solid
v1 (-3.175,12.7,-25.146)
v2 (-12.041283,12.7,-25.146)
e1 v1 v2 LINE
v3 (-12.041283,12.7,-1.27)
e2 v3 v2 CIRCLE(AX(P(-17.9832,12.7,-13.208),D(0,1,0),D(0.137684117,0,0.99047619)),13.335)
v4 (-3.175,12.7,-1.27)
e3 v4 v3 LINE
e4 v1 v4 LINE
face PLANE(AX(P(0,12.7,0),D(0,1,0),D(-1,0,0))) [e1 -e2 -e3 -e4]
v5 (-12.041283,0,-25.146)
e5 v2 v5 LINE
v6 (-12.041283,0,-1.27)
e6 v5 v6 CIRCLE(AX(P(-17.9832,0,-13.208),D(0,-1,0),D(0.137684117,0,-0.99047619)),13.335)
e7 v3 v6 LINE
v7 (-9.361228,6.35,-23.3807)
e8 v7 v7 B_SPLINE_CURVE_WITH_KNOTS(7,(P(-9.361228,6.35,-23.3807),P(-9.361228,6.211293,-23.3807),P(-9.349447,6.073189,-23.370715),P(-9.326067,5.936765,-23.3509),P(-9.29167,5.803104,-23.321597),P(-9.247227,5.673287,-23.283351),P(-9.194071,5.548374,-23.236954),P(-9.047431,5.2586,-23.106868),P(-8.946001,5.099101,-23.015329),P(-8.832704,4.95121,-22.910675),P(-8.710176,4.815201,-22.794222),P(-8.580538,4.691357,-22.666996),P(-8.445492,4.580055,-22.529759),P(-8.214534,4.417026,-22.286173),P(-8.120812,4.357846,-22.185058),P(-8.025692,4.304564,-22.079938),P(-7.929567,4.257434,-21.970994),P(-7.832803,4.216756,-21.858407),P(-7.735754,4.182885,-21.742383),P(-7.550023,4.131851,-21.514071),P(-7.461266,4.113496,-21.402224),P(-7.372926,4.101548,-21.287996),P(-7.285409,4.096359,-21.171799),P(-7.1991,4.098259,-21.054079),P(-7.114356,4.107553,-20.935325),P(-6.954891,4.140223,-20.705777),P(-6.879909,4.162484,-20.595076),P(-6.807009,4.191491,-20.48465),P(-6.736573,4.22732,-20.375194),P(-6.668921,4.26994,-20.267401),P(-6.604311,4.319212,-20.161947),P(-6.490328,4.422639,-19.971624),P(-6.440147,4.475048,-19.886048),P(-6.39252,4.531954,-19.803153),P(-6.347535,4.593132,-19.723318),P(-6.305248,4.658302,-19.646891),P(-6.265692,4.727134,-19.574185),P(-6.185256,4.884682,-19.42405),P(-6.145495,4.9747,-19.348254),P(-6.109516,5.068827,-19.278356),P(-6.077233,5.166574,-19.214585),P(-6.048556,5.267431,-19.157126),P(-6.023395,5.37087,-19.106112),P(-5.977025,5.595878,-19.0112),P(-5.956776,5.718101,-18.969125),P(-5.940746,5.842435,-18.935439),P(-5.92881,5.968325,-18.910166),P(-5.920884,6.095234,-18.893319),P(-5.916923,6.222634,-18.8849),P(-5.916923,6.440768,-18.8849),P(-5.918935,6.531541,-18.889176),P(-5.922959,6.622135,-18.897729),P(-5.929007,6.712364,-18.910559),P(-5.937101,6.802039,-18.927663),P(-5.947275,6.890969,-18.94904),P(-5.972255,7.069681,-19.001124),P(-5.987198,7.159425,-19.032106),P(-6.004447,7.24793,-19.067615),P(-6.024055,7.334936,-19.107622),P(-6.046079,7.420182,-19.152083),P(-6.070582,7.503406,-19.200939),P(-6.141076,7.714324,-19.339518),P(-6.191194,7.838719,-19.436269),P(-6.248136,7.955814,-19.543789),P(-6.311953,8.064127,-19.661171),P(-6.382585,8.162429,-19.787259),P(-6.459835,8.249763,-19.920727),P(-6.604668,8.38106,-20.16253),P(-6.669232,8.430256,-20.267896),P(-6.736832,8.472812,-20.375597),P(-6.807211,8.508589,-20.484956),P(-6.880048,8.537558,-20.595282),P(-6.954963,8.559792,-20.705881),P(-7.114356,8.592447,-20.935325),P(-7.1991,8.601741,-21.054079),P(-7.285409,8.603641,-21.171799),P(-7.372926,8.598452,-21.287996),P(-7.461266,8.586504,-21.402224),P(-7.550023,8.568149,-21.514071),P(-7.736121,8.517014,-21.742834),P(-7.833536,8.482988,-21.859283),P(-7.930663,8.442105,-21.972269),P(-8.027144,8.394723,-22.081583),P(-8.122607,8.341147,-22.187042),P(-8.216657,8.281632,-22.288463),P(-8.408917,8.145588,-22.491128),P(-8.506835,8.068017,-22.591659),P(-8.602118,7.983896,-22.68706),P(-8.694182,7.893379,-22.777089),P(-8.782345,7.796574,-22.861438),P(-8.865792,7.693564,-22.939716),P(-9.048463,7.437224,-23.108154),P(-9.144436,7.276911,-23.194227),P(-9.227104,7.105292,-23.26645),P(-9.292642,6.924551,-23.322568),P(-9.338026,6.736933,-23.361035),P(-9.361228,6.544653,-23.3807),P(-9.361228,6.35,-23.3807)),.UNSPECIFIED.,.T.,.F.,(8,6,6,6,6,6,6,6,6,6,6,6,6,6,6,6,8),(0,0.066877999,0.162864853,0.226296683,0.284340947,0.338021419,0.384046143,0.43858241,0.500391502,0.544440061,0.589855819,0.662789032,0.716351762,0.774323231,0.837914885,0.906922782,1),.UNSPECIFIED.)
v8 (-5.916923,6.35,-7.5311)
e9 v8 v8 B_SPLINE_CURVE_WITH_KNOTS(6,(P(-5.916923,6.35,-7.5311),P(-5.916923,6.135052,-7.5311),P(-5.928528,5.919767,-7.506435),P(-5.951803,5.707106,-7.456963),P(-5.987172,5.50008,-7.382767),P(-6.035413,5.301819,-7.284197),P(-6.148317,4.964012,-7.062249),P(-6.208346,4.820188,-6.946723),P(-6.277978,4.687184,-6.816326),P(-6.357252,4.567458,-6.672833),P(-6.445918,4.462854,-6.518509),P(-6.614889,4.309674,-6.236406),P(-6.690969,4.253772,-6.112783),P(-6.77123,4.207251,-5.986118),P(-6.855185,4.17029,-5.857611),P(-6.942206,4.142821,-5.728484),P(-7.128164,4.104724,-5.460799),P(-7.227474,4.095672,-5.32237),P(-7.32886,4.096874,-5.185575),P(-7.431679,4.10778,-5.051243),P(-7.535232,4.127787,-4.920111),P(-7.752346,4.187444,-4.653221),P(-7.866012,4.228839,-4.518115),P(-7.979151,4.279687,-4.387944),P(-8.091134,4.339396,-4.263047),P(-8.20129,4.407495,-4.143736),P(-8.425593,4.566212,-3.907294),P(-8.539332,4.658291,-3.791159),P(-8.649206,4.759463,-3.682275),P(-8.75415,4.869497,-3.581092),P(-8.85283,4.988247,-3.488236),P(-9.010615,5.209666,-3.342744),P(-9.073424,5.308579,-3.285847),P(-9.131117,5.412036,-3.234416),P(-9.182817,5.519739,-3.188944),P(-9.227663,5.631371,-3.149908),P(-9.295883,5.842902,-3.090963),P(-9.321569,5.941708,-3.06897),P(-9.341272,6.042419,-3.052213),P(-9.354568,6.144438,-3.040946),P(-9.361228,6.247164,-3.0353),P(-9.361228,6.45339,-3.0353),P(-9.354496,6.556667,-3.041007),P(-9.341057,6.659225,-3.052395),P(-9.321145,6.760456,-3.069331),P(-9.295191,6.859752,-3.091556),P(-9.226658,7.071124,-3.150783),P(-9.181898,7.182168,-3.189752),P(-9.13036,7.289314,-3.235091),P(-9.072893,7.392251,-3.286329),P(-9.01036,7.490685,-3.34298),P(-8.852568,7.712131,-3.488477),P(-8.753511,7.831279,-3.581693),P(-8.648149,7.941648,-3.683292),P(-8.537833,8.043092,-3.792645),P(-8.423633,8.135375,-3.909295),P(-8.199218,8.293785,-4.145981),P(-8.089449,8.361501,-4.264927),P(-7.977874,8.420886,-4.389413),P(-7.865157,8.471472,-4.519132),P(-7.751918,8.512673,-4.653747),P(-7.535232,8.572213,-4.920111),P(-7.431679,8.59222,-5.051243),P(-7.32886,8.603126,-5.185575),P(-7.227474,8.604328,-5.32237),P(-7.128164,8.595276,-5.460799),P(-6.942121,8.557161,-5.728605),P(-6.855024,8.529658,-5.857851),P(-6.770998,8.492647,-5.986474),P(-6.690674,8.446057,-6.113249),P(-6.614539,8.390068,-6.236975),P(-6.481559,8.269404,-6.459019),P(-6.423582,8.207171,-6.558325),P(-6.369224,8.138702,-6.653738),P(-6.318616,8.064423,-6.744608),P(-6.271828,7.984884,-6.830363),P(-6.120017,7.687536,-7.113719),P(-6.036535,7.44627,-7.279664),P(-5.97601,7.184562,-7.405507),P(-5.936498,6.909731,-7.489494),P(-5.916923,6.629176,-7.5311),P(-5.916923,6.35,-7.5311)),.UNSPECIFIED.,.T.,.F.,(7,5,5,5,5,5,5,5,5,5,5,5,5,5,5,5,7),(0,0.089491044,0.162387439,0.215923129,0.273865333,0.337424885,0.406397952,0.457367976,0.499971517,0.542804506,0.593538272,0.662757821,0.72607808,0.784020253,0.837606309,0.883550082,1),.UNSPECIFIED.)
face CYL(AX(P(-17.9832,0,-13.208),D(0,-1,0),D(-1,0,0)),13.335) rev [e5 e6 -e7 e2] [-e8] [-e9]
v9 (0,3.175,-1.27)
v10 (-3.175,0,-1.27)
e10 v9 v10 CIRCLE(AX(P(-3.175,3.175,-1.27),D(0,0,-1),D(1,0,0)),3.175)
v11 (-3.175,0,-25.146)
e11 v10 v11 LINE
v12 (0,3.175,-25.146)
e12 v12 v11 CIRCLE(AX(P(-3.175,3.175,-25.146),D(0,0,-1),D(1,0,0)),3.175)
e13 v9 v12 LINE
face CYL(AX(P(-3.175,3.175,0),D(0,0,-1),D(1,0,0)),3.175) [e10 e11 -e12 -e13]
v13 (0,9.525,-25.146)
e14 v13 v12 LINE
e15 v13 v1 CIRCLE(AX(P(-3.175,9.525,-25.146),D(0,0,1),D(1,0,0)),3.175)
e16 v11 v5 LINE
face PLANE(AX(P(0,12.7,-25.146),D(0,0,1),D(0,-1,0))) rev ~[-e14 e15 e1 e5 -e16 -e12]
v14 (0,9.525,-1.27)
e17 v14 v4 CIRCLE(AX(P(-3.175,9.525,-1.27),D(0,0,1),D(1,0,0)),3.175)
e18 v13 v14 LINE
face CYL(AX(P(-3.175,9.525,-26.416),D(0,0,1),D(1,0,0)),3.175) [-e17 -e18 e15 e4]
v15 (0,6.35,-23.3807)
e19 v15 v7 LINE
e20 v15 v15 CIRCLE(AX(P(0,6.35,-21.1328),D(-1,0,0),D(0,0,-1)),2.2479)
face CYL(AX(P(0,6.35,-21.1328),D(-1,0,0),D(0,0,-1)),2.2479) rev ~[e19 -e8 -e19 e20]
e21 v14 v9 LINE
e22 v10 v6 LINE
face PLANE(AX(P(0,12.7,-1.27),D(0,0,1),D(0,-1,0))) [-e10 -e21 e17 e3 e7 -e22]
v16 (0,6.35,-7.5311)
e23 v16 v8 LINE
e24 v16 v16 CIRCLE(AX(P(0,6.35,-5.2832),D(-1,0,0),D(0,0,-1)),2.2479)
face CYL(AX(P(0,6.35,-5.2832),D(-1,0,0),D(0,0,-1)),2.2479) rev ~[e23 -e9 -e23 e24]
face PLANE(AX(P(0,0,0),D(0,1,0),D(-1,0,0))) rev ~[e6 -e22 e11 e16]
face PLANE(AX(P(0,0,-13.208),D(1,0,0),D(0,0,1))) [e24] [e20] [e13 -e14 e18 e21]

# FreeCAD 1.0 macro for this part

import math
import FreeCAD as App
import Part
import Sketcher
from FreeCAD import Vector
Q = App.Units.Quantity


def edges_at(feature, points):
    """Names of the edges that pass closest to the given points."""
    edges = feature.Shape.Edges
    near = lambda p: min(range(len(edges)), key=lambda i: edges[i].distToShape(Part.Vertex(*p))[0])
    return sorted({f"Edge{near(p) + 1}" for p in points})


def add_polygon(sketch, points):
    """Adds a closed chain of lines whose ends are joined by coincident constraints."""
    first, n = sketch.GeometryCount, len(points)
    for a, b in zip(points, points[1:] + points[:1]):
        sketch.addGeometry(Part.LineSegment(App.Vector(*a, 0), App.Vector(*b, 0)), False)
    for i in range(n):
        sketch.addConstraint(Sketcher.Constraint("Coincident", first + i, 2, first + (i + 1) % n, 1))

doc = App.newDocument("Part")
body = doc.addObject("PartDesign::Body", "Body")

# Sketch on XZ plane
sketch1 = body.newObject("Sketcher::SketchObject", "Sketch")
sketch1.AttachmentSupport = (doc.getObject("XZ_Plane"), [""])
sketch1.MapMode = "FlatFace"
sketch1.addGeometry(Part.LineSegment(Vector(-16, 0, 0), Vector(0, 0, 0)), False)
sketch1.addGeometry(Part.LineSegment(Vector(0, 0, 0), Vector(0, -26, 0)), False)
sketch1.addGeometry(Part.LineSegment(Vector(0, -26, 0), Vector(-16, -26, 0)), False)
sketch1.addGeometry(Part.ArcOfCircle(Part.Circle(Vector(-18, -13, 0), Vector(0, 0, 1), 13), math.radians(-82), math.radians(82)), False)
sketch1.addConstraint(Sketcher.Constraint("Coincident", 0, 2, 1, 1))
sketch1.addConstraint(Sketcher.Constraint("Coincident", 1, 2, 2, 1))
sketch1.addConstraint(Sketcher.Constraint("Coincident", 2, 2, 3, 1))
sketch1.addConstraint(Sketcher.Constraint("Coincident", 3, 2, 0, 1))
sketch1.addConstraint(Sketcher.Constraint("Horizontal", 0))
sketch1.addConstraint(Sketcher.Constraint("Vertical", 1))
sketch1.addConstraint(Sketcher.Constraint("Horizontal", 2))
sketch1.addConstraint(Sketcher.Constraint("Coincident", 0, 2, -1, 1))
sketch1.addConstraint(Sketcher.Constraint("Vertical", 2, 2, 3, 2))
sketch1.addConstraint(Sketcher.Constraint("Radius", 3, Q("0.525 in")))
sketch1.addConstraint(Sketcher.Constraint("DistanceY", 1, 2, 1, 1, Q("1.04 in")))
sketch1.addConstraint(Sketcher.Constraint("DistanceX", 3, 3, -1, 1, Q("0.708 in")))
pad1 = body.newObject("PartDesign::Pad", "Pad")
pad1.Profile = sketch1
pad1.Length = Q("0.5 in")
pad1.Reversed = True

# Sketch on YZ plane
sketch2 = body.newObject("Sketcher::SketchObject", "Sketch001")
sketch2.AttachmentSupport = (doc.getObject("YZ_Plane"), [""])
sketch2.MapMode = "FlatFace"
sketch2.addGeometry(Part.Circle(Vector(6.3, -5.3, 0), Vector(0, 0, 1), 2.2), False)
sketch2.addGeometry(Part.Circle(Vector(6.3, -21.1, 0), Vector(0, 0, 1), 2.2), False)
sketch2.addConstraint(Sketcher.Constraint("Equal", 0, 1))
sketch2.addConstraint(Sketcher.Constraint("Vertical", 0, 3, 1, 3))
sketch2.addConstraint(Sketcher.Constraint("Diameter", 0, Q("0.177 in")))
sketch2.addConstraint(Sketcher.Constraint("DistanceX", -1, 1, 0, 3, Q("0.25 in")))
sketch2.addConstraint(Sketcher.Constraint("DistanceY", 0, 3, -1, 1, Q("0.208 in")))
sketch2.addConstraint(Sketcher.Constraint("DistanceY", 1, 3, -1, 1, Q("0.832 in")))
doc.recompute()
hole = body.newObject("PartDesign::Hole", "Hole")
hole.Profile = sketch2
hole.ThreadType = "None"
hole.Diameter = Q("0.177 in")
hole.DepthType = "Dimension"
hole.Depth = 35
hole.DrillPoint = "Flat"
doc.recompute()

fillet = body.newObject("PartDesign::Fillet", "Fillet")
fillet.Base = (hole, edges_at(hole, [(0, 12.7, -13.208), (0, 0, -13.208)]))
fillet.Radius = Q("0.125 in")

# Sketch on YZ plane
sketch3 = body.newObject("Sketcher::SketchObject", "Sketch002")
sketch3.AttachmentSupport = (doc.getObject("YZ_Plane"), [""])
sketch3.MapMode = "FlatFace"
add_polygon(sketch3, [(12.7, -1.3), (12.7, 0), (0, 0), (0, -1.3)])  # lines 0-3
add_polygon(sketch3, [(12.7, -26.4), (12.7, -25.1), (0, -25.1), (0, -26.4)])  # lines 4-7
sketch3.addConstraint(Sketcher.Constraint("Vertical", 0))
sketch3.addConstraint(Sketcher.Constraint("Horizontal", 1))
sketch3.addConstraint(Sketcher.Constraint("Vertical", 2))
sketch3.addConstraint(Sketcher.Constraint("Horizontal", 3))
sketch3.addConstraint(Sketcher.Constraint("Vertical", 4))
sketch3.addConstraint(Sketcher.Constraint("Horizontal", 5))
sketch3.addConstraint(Sketcher.Constraint("Vertical", 6))
sketch3.addConstraint(Sketcher.Constraint("Horizontal", 7))
sketch3.addConstraint(Sketcher.Constraint("Coincident", 1, 2, -1, 1))
sketch3.addConstraint(Sketcher.Constraint("PointOnObject", 5, 2, -2))
sketch3.addConstraint(Sketcher.Constraint("Vertical", 3, 2, 4, 2))
sketch3.addConstraint(Sketcher.Constraint("Equal", 2, 4))
sketch3.addConstraint(Sketcher.Constraint("DistanceY", 0, 1, 0, 2, Q("0.05 in")))
sketch3.addConstraint(Sketcher.Constraint("DistanceX", 1, 2, 1, 1, Q("0.5 in")))
sketch3.addConstraint(Sketcher.Constraint("DistanceY", 4, 2, -1, 1, Q("0.99 in")))
pocket1 = body.newObject("PartDesign::Pocket", "Pocket")
pocket1.Profile = sketch3
pocket1.Length = Q("1 in")

doc.recompute()
